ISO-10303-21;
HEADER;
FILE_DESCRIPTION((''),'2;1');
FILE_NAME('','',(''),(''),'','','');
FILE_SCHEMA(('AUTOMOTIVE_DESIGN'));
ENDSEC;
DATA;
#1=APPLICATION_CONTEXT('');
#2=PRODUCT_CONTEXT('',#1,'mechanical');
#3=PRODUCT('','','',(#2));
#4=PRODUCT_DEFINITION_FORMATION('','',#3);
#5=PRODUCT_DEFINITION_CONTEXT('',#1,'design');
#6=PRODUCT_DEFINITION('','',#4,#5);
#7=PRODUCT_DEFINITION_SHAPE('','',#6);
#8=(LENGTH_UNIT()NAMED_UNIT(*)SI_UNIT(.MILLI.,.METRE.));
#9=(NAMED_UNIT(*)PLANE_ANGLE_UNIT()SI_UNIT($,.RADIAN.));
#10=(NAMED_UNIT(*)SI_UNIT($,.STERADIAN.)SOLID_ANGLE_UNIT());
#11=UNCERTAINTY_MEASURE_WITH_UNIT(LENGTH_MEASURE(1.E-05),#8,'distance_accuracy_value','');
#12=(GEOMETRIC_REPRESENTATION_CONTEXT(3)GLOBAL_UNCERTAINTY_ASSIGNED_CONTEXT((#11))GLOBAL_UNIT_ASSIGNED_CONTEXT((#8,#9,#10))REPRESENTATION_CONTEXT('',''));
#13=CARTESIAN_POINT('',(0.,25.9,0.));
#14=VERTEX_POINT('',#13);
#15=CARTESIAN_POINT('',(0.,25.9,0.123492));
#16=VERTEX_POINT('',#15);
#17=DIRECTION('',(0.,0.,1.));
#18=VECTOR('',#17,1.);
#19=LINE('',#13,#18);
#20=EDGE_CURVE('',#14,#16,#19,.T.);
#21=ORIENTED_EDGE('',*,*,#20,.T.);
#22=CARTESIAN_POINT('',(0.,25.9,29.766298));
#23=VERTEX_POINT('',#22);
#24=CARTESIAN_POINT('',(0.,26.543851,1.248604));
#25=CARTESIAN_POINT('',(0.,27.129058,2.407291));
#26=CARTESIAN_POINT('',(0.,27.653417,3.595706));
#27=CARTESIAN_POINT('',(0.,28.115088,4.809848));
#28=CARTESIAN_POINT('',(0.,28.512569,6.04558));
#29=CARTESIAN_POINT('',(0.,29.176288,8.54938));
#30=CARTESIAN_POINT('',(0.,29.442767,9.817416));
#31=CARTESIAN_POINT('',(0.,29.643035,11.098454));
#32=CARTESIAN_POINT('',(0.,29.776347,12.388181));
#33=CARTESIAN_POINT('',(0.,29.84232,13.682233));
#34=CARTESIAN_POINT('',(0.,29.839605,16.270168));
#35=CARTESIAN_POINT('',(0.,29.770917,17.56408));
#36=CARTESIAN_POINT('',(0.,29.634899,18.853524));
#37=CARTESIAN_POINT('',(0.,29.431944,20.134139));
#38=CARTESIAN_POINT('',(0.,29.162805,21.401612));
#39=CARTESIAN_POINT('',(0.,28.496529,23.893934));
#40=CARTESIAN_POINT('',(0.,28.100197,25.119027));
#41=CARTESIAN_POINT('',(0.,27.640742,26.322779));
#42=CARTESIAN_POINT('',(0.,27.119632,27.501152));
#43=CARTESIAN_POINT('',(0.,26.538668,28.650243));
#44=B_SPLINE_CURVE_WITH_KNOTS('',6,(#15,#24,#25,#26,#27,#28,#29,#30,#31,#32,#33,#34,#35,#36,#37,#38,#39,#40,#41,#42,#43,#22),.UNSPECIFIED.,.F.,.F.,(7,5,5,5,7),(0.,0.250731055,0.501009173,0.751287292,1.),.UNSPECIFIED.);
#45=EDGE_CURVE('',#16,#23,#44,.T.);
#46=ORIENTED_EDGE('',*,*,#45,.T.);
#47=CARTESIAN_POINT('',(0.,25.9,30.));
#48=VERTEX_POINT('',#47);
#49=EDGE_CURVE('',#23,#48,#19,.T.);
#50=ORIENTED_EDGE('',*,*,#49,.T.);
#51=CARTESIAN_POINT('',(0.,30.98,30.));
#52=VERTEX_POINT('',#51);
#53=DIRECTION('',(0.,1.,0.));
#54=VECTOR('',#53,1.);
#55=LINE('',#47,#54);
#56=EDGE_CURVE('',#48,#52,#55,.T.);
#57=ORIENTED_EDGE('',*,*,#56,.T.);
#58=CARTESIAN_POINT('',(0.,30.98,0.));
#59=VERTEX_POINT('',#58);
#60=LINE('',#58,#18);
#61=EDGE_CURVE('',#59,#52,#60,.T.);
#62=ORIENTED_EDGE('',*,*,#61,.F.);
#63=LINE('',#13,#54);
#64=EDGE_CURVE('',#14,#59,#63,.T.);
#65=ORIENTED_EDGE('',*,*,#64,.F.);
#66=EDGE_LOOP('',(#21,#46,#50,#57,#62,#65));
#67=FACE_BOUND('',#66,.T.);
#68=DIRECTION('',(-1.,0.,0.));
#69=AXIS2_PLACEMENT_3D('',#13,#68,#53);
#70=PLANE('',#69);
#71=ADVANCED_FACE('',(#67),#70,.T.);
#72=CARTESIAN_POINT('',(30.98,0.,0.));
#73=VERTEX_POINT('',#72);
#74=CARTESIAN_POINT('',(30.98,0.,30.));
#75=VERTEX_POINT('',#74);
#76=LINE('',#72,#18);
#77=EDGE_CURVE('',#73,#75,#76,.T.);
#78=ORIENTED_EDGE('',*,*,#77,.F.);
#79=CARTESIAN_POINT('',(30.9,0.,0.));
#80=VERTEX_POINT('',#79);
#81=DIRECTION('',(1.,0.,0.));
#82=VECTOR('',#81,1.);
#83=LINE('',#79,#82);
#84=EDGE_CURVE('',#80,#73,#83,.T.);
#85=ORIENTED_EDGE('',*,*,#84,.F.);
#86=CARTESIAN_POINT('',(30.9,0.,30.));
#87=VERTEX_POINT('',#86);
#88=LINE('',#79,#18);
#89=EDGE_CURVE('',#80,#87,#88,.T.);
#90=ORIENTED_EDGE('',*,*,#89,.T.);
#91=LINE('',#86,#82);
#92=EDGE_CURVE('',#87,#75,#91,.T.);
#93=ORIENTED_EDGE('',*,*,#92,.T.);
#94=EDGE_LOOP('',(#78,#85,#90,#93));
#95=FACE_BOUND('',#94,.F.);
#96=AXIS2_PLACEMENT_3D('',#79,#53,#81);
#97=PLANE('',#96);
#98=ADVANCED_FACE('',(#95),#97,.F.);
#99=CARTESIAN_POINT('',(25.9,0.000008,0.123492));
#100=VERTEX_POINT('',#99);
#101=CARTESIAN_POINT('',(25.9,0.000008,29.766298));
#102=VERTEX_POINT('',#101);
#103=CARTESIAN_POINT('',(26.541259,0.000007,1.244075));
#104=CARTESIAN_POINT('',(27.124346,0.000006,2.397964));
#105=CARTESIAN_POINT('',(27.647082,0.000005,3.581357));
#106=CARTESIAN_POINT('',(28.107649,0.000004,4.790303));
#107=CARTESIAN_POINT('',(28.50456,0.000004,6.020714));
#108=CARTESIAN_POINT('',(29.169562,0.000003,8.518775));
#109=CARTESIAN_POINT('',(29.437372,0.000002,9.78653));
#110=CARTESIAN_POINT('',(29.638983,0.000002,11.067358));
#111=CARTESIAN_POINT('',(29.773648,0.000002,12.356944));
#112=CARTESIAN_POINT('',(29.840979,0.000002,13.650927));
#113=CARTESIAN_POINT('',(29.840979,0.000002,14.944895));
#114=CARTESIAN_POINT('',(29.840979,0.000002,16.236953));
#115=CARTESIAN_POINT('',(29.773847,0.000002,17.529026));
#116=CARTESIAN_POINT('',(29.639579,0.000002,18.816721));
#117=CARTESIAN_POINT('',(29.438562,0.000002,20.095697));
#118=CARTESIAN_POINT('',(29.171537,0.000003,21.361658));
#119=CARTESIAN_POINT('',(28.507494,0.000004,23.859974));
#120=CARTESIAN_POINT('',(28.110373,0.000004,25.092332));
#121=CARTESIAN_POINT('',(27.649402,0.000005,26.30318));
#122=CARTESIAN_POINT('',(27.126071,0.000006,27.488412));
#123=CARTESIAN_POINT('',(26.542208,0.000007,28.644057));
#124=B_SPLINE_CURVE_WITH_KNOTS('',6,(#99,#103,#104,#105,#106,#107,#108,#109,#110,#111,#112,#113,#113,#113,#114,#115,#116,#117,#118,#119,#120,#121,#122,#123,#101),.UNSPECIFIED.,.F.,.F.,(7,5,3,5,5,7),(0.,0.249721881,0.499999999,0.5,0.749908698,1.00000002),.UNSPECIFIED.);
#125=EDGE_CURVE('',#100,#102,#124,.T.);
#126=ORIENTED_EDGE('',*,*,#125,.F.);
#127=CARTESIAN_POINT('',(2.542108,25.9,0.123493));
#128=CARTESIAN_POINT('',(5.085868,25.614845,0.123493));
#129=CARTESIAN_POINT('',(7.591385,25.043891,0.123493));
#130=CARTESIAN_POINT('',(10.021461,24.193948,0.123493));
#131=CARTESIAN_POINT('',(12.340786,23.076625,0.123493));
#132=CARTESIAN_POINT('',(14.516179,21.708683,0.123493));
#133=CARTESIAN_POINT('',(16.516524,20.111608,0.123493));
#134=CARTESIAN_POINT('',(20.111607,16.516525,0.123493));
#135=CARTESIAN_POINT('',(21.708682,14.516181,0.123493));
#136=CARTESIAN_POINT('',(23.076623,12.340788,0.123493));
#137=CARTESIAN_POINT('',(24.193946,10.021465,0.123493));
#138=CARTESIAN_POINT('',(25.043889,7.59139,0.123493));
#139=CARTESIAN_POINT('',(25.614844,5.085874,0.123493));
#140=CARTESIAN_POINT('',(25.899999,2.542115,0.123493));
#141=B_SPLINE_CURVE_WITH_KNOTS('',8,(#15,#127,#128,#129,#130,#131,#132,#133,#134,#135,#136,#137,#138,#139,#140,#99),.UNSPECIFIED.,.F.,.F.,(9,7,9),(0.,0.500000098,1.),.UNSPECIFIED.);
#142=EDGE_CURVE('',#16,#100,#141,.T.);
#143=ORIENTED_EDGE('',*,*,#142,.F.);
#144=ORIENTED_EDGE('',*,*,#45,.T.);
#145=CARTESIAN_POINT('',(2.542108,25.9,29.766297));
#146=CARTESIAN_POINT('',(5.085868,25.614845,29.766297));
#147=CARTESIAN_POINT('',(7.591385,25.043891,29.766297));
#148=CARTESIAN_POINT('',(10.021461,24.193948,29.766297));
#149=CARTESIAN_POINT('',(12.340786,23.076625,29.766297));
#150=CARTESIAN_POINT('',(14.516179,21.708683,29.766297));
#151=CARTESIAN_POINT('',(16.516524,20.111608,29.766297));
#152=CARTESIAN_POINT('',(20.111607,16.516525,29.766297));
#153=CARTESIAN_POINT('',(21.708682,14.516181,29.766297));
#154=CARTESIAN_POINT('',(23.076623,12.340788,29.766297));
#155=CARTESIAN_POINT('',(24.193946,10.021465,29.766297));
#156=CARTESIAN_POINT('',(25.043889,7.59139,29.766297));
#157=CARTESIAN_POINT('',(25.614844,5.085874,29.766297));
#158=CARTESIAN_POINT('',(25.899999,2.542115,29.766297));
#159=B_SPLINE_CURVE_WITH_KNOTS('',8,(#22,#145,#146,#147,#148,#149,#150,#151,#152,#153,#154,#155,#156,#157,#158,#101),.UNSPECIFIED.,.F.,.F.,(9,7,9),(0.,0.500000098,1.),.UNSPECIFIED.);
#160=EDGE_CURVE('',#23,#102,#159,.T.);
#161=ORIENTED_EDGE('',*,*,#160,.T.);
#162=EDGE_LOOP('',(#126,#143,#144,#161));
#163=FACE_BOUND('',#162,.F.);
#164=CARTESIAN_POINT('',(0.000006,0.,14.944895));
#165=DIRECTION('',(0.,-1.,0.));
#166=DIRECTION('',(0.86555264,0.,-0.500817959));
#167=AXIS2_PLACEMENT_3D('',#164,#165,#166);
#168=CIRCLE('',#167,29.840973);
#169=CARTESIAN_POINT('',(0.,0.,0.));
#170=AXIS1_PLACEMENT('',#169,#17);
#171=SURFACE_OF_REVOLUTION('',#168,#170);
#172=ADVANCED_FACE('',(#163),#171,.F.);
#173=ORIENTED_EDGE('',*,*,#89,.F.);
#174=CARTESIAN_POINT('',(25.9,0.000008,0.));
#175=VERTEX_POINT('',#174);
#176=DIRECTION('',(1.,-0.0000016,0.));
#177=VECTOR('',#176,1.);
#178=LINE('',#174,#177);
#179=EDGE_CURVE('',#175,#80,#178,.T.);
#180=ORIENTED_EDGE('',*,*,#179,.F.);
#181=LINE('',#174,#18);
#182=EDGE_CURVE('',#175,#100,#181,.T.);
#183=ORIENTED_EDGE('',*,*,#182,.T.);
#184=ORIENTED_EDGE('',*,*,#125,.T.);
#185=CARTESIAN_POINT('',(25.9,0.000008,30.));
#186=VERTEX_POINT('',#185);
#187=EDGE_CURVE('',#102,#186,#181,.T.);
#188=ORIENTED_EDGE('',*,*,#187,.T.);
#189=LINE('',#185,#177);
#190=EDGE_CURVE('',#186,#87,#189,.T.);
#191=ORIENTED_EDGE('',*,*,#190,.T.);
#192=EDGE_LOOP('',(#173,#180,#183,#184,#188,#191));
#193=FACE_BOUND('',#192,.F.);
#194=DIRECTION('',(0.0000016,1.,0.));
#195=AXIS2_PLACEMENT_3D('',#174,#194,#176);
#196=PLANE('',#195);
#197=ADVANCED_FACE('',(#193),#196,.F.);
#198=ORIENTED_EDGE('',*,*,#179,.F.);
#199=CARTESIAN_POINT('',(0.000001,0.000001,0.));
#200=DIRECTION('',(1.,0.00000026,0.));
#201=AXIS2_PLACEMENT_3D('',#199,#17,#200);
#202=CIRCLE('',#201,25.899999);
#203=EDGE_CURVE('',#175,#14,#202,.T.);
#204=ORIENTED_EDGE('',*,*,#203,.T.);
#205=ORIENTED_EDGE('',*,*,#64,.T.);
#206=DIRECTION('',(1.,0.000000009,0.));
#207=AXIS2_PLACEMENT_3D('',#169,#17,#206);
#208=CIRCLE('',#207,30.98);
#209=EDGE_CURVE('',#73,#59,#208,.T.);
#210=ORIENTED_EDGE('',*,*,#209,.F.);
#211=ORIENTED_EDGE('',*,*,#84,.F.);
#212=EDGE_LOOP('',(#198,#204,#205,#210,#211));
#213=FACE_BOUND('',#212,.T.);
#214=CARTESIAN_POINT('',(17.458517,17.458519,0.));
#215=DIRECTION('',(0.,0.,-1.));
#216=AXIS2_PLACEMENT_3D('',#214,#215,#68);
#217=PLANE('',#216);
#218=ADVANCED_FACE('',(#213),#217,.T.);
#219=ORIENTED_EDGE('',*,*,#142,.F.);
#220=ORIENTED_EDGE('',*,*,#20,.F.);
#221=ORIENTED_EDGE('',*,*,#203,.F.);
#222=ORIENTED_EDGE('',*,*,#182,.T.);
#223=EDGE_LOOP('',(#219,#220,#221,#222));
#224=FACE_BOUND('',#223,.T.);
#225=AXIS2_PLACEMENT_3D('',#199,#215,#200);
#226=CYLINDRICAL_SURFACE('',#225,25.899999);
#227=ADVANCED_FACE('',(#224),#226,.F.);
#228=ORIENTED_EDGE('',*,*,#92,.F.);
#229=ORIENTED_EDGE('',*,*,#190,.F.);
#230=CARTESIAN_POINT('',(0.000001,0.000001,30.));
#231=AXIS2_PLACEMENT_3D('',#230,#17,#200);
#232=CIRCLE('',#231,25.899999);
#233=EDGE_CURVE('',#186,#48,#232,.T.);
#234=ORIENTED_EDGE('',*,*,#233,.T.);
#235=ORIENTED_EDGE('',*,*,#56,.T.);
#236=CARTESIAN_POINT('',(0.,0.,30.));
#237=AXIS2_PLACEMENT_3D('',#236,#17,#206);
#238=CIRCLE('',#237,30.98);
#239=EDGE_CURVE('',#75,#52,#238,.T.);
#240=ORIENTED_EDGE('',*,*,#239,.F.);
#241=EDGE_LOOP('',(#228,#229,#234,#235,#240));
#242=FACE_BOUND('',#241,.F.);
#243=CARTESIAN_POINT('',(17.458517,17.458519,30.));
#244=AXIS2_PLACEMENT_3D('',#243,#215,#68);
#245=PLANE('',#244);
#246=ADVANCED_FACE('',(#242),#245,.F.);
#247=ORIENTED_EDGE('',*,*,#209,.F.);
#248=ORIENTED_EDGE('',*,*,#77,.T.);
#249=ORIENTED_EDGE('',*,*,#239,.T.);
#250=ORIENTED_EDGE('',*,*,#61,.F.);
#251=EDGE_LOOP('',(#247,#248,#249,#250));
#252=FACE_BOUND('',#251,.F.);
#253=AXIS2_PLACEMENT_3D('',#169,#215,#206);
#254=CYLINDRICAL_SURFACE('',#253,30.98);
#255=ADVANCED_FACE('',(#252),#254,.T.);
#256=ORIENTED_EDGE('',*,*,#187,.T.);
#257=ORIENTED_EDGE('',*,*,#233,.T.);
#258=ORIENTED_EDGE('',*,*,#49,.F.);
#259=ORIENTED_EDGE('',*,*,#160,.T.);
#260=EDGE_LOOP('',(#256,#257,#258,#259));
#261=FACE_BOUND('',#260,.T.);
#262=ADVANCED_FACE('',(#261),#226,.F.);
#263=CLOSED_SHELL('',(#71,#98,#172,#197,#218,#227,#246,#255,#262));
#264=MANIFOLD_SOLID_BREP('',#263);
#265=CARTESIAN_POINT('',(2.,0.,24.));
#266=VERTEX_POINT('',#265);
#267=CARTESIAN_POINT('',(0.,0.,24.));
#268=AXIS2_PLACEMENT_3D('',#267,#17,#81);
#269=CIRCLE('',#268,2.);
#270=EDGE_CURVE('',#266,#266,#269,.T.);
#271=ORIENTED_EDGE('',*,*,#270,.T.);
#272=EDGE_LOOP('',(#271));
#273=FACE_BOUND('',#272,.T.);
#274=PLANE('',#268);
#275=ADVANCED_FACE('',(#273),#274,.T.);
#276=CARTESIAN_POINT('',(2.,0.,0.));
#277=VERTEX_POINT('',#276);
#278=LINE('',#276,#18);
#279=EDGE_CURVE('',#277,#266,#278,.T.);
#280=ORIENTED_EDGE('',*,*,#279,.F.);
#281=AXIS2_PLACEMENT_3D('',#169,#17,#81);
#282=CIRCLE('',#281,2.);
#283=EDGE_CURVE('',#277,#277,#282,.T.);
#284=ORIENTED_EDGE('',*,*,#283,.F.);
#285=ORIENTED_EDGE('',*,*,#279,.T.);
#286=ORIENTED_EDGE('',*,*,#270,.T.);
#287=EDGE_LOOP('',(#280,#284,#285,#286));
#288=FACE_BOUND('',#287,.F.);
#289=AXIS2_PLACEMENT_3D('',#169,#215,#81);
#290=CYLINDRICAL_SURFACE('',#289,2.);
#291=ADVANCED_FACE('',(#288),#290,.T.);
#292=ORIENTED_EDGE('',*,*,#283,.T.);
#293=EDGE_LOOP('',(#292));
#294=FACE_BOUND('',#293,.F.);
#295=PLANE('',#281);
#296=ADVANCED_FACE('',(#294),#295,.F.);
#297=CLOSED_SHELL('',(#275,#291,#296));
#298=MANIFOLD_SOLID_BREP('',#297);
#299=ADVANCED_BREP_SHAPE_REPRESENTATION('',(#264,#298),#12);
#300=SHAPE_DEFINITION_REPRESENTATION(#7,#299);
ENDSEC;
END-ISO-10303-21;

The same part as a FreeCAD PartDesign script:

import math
import FreeCAD as App
import Part
import Sketcher

doc = App.newDocument("Part")
params = doc.addObject("Spreadsheet::Sheet", "Params")
for row, (alias, value) in enumerate([
    ("sketch1_diameter", "4 mm"),
    ("pad1_length", "24 mm"),
    ("sketch2_radius", "25.899999 mm"),
    ("sketch2_radius2", "30.98 mm"),
    ("sketch2_length", "5 mm"),
    ("pad2_length", "30 mm"),
    ("groove_angle", "360 deg"),
], start=1):
    params.set(f"A{row}", alias)
    params.set(f"B{row}", "=" + value)
    params.setAlias(f"B{row}", alias)

body = doc.addObject("PartDesign::Body", "Body")

# Sketch on XY plane
sketch1 = body.newObject("Sketcher::SketchObject", "Sketch")
sketch1.AttachmentSupport = (doc.getObject("XY_Plane"), [""])
sketch1.MapMode = "FlatFace"
sketch1.addGeometry(Part.Circle(App.Vector(0, 0, 0), App.Vector(0, 0, 1), 2), False)
sketch1.addConstraint([
    Sketcher.Constraint("Coincident", 0, 3, -1, 1),
    Sketcher.Constraint("Diameter", 0, 4.0),
])
sketch1.setExpression("Constraints[1]", "Params.sketch1_diameter")
pad1 = body.newObject("PartDesign::Pad", "Pad")
pad1.Profile = sketch1
pad1.setExpression("Length", "Params.pad1_length")
body2 = doc.addObject("PartDesign::Body", "Body001")
doc.recompute()

body.Placement = App.Placement(App.Vector(0, 0, 0), App.Rotation(App.Vector(1, 0, 0), 334.857495))
boolean = body2.newObject("PartDesign::Boolean", "Boolean")
boolean.Type = "Fuse"
boolean.addObjects([body])
body3 = doc.addObject("PartDesign::Body", "Body002")
doc.recompute()

body2.Placement = App.Placement(App.Vector(0, 0, 0), App.Rotation(App.Vector(0, 1, 0), 89.880709))
boolean2 = body3.newObject("PartDesign::Boolean", "Boolean001")
boolean2.Type = "Fuse"
boolean2.addObjects([body2])
body4 = doc.addObject("PartDesign::Body", "Body003")
doc.recompute()

body3.Placement = App.Placement(App.Vector(21.03, 20.35, 4), App.Rotation(App.Vector(0, 0, 1), 25.142505))
boolean3 = body4.newObject("PartDesign::Boolean", "Boolean002")
boolean3.Type = "Fuse"
boolean3.addObjects([body3])
body5 = doc.addObject("PartDesign::Body", "Body004")
doc.recompute()

body4.Placement = App.Placement(App.Vector(0, 0, 0), App.Rotation(App.Vector(1, 0, 0), 89.859615))
boolean4 = body5.newObject("PartDesign::Boolean", "Boolean003")
boolean4.Type = "Fuse"
boolean4.addObjects([body4])
body6 = doc.addObject("PartDesign::Body", "Body005")
doc.recompute()

body5.Placement = App.Placement(App.Vector(0, 0, 0), App.Rotation(App.Vector(0, 1, 0), 320.285141))
boolean5 = body6.newObject("PartDesign::Boolean", "Boolean004")
boolean5.Type = "Fuse"
boolean5.addObjects([body5])
body7 = doc.addObject("PartDesign::Body", "Body006")
body7.AllowCompound = True
doc.recompute()

body6.Placement = App.Placement(App.Vector(3.942353, 3.177449, -29.098884), App.Rotation(App.Vector(0, 0, 1), 270.140385))
boolean6 = body7.newObject("PartDesign::Boolean", "Boolean005")
boolean6.Type = "Fuse"
boolean6.addObjects([body6])

# Sketch on XY plane
sketch2 = body7.newObject("Sketcher::SketchObject", "Sketch001")
sketch2.AttachmentSupport = (doc.getObject("XY_Plane006"), [""])
sketch2.MapMode = "FlatFace"
sketch2.addGeometry([
    Part.ArcOfCircle(Part.Circle(App.Vector(0, 0, 0), App.Vector(0, 0, 1), 25.9), math.radians(0), math.radians(90)),  # 0
    Part.LineSegment(App.Vector(25.9, 0, 0), App.Vector(30.9, 0, 0)),  # 1
    Part.LineSegment(App.Vector(30.9, 0, 0), App.Vector(30.98, 0, 0)),  # 2
    Part.ArcOfCircle(Part.Circle(App.Vector(0, 0, 0), App.Vector(0, 0, 1), 30.98), math.radians(0), math.radians(90)),  # 3
    Part.LineSegment(App.Vector(0, 30.98, 0), App.Vector(0, 25.9, 0)),  # 4
], False)
sketch2.addConstraint([
    Sketcher.Constraint("Coincident", 0, 1, 1, 1),
    Sketcher.Constraint("Coincident", 1, 2, 2, 1),
    Sketcher.Constraint("Coincident", 2, 2, 3, 1),
    Sketcher.Constraint("Coincident", 3, 2, 4, 1),
    Sketcher.Constraint("Coincident", 4, 2, 0, 2),
    Sketcher.Constraint("Horizontal", 2),
    Sketcher.Constraint("Vertical", 4),
    Sketcher.Constraint("Coincident", 0, 3, -1, 1),
    Sketcher.Constraint("Coincident", 3, 3, -1, 1),
    Sketcher.Constraint("PointOnObject", 1, 2, -1),
    Sketcher.Constraint("PointOnObject", 3, 2, -2),
    Sketcher.Constraint("Radius", 0, 25.899999),
    Sketcher.Constraint("Radius", 3, 30.98),
    Sketcher.Constraint("Distance", 1, 5.0),
    Sketcher.Constraint("DistanceY", 0, 1, 3, 2, 30.979992),
])
sketch2.setExpression("Constraints[11]", "Params.sketch2_radius")
sketch2.setExpression("Constraints[12]", "Params.sketch2_radius2")
sketch2.setExpression("Constraints[13]", "Params.sketch2_length")
pad2 = body7.newObject("PartDesign::Pad", "Pad001")
pad2.Profile = sketch2
pad2.setExpression("Length", "Params.pad2_length")

# Sketch on XZ plane
sketch3 = body7.newObject("Sketcher::SketchObject", "Sketch002")
sketch3.AttachmentSupport = (doc.getObject("XZ_Plane006"), [""])
sketch3.MapMode = "FlatFace"
sketch3.addGeometry([
    Part.ArcOfCircle(Part.Circle(App.Vector(0, 15, 0), App.Vector(0, 0, 1), 30), math.radians(-30), math.radians(30)),
    Part.LineSegment(App.Vector(26, 30, 0), App.Vector(26, 0, 0)),
], False)
sketch3.addConstraint([
    Sketcher.Constraint("Coincident", 0, 1, 1, 2),
    Sketcher.Constraint("Coincident", 1, 1, 0, 2),
    Sketcher.Constraint("Vertical", 1),
    Sketcher.Constraint("PointOnObject", 0, 1, -1),
    Sketcher.Constraint("Radius", 0, 29.840973),
    Sketcher.Constraint("DistanceY", 1, 2, 1, 1, 29.88979),
    Sketcher.Constraint("DistanceX", -1, 1, 0, 1, 25.828939),
])
groove = body7.newObject("PartDesign::Groove", "Groove")
groove.Profile = sketch3
groove.ReferenceAxis = (sketch3, ["V_Axis"])
groove.setExpression("Angle", "Params.groove_angle")

doc.recompute()
